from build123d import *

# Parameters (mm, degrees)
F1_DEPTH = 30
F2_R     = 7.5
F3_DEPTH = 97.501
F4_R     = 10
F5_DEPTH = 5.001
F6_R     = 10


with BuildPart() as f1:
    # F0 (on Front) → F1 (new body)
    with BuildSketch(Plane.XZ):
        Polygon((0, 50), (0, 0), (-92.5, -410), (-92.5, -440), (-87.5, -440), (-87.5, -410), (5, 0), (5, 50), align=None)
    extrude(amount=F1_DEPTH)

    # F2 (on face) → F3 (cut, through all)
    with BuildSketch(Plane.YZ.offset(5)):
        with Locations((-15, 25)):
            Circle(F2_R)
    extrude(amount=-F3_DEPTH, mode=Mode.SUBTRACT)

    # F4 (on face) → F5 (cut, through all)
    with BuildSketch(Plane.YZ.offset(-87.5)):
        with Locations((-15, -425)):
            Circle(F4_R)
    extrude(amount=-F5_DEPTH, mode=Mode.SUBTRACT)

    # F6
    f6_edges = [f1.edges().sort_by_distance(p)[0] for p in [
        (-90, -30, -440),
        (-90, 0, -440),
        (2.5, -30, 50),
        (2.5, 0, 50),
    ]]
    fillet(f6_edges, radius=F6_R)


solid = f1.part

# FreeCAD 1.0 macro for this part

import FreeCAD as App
import Part
import Sketcher


def edges_at(feature, points):
    """Names of the edges that pass closest to the given points."""
    edges = feature.Shape.Edges
    near = lambda p: min(range(len(edges)), key=lambda i: edges[i].distToShape(Part.Vertex(*p))[0])
    return sorted({f"Edge{near(p) + 1}" for p in points})


def add_polygon(sketch, points):
    """Adds a closed chain of lines whose ends are joined by coincident constraints."""
    first, n = sketch.GeometryCount, len(points)
    for a, b in zip(points, points[1:] + points[:1]):
        sketch.addGeometry(Part.LineSegment(App.Vector(*a, 0), App.Vector(*b, 0)), False)
    for i in range(n):
        sketch.addConstraint(Sketcher.Constraint("Coincident", first + i, 2, first + (i + 1) % n, 1))

doc = App.newDocument("Part")
body = doc.addObject("PartDesign::Body", "Body")

# Sketch on XZ plane
sketch1 = body.newObject("Sketcher::SketchObject", "Sketch")
sketch1.AttachmentSupport = (doc.getObject("XZ_Plane"), [""])
sketch1.MapMode = "FlatFace"
add_polygon(sketch1, [(0, 50), (0, 0), (-92, -410), (-92, -440), (-88, -440), (-88, -410), (5, 0), (5, 50)])  # lines 0-7
sketch1.addConstraint([
    Sketcher.Constraint("Vertical", 0),
    Sketcher.Constraint("Vertical", 2),
    Sketcher.Constraint("Horizontal", 3),
    Sketcher.Constraint("Vertical", 4),
    Sketcher.Constraint("Vertical", 6),
    Sketcher.Constraint("Horizontal", 7),
    Sketcher.Constraint("Coincident", 0, 2, -1, 1),
    Sketcher.Constraint("PointOnObject", 5, 2, -1),
    Sketcher.Constraint("Parallel", 1, 5),
    Sketcher.Constraint("Horizontal", 1, 2, 4, 2),
    Sketcher.Constraint("DistanceX", 3, 1, 3, 2, 5.0),
    Sketcher.Constraint("DistanceY", 0, 2, 0, 1, 50.0),
    Sketcher.Constraint("DistanceY", 2, 2, 2, 1, 30.0),
    Sketcher.Constraint("DistanceY", 1, 2, -1, 1, 410.0),
    Sketcher.Constraint("DistanceX", 1, 2, -1, 1, 92.5),
])
pad1 = body.newObject("PartDesign::Pad", "Pad")
pad1.Profile = sketch1
pad1.Length = 30

# Sketch on YZ plane
sketch2 = body.newObject("Sketcher::SketchObject", "Sketch001")
sketch2.AttachmentSupport = (doc.getObject("YZ_Plane"), [""])
sketch2.MapMode = "FlatFace"
sketch2.AttachmentOffset = App.Placement(App.Vector(0, 0, 5), App.Rotation())
sketch2.addGeometry(Part.Circle(App.Vector(-15, 25, 0), App.Vector(0, 0, 1), 8), False)
sketch2.addConstraint([
    Sketcher.Constraint("Diameter", 0, 15.0),
    Sketcher.Constraint("DistanceX", 0, 3, -1, 1, 15.0),
    Sketcher.Constraint("DistanceY", -1, 1, 0, 3, 25.0),
])
pocket1 = body.newObject("PartDesign::Pocket", "Pocket")
pocket1.Profile = sketch2
pocket1.Type = "ThroughAll"

# Sketch on YZ plane
sketch3 = body.newObject("Sketcher::SketchObject", "Sketch002")
sketch3.AttachmentSupport = (doc.getObject("YZ_Plane"), [""])
sketch3.MapMode = "FlatFace"
sketch3.AttachmentOffset = App.Placement(App.Vector(0, 0, -87.5), App.Rotation())
sketch3.addGeometry(Part.Circle(App.Vector(-15, -425, 0), App.Vector(0, 0, 1), 10), False)
sketch3.addConstraint([
    Sketcher.Constraint("Diameter", 0, 20.0),
    Sketcher.Constraint("DistanceX", 0, 3, -1, 1, 15.0),
    Sketcher.Constraint("DistanceY", 0, 3, -1, 1, 425.0),
])
pocket2 = body.newObject("PartDesign::Pocket", "Pocket001")
pocket2.Profile = sketch3
pocket2.Type = "ThroughAll"
doc.recompute()

fillet = body.newObject("PartDesign::Fillet", "Fillet")
fillet.Base = (pocket2, edges_at(pocket2, [
    (-90, -30, -440),
    (-90, 0, -440),
    (2.5, -30, 50),
    (2.5, 0, 50),
]))
fillet.Radius = 10

doc.recompute()
